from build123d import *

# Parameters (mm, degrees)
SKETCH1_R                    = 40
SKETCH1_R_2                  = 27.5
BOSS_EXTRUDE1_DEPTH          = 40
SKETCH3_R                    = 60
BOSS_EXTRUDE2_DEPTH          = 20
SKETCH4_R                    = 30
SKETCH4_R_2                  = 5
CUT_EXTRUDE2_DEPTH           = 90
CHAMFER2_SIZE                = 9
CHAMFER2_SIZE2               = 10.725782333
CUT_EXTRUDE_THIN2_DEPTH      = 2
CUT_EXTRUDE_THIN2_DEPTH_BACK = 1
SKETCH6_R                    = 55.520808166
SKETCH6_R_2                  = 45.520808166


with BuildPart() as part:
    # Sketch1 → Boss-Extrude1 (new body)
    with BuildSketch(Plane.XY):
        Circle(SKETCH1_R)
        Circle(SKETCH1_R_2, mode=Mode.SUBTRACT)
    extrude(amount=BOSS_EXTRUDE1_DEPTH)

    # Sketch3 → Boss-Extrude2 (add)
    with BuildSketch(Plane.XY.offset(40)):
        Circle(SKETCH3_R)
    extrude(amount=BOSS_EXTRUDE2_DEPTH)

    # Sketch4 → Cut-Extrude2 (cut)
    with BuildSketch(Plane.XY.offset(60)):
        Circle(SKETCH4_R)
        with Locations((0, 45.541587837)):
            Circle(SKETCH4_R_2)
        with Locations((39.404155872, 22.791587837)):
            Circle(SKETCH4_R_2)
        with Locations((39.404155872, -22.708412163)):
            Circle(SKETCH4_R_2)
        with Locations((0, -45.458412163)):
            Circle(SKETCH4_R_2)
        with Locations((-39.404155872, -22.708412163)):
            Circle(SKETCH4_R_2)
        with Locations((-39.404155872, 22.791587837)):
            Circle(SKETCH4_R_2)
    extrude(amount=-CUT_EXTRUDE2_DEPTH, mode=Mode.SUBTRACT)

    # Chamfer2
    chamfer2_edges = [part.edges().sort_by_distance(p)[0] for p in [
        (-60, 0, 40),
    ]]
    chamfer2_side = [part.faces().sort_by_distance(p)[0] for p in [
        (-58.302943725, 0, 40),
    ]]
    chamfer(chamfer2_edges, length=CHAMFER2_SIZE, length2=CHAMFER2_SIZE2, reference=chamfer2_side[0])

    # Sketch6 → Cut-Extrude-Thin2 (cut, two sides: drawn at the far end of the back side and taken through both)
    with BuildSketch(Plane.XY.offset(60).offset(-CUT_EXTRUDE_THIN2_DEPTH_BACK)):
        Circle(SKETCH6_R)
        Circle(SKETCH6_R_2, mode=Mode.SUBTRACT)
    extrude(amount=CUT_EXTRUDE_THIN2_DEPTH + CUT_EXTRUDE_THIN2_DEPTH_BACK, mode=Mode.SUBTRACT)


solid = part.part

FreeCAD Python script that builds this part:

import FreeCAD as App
import Part
import Sketcher

V = App.Vector
Q = App.Units.Quantity


def edges_at(feature, points):
    """Names of the edges that pass closest to the given points."""
    edges = feature.Shape.Edges
    near = lambda p: min(range(len(edges)), key=lambda i: edges[i].distToShape(Part.Vertex(*p))[0])
    return sorted({f"Edge{near(p) + 1}" for p in points})

doc = App.newDocument("Part")
body = doc.addObject("PartDesign::Body", "Body")

sketch1 = body.newObject("Sketcher::SketchObject", "Sketch")
sketch1.AttachmentSupport = (doc.getObject("XY_Plane"), [""])
sketch1.MapMode = "FlatFace"
sketch1.addGeometry([
    Part.Circle(V(0, 0, 0), V(0, 0, 1), 40),
    Part.Circle(V(0, 0, 0), V(0, 0, 1), 28),
], False)
sketch1.addConstraint([
    Sketcher.Constraint("Coincident", 0, 3, -1, 1),
    Sketcher.Constraint("Coincident", 1, 3, -1, 1),
    Sketcher.Constraint("Diameter", 0, Q("80 mm")),
    Sketcher.Constraint("Diameter", 1, Q("55 mm")),
])
pad1 = body.newObject("PartDesign::Pad", "Pad")
pad1.Profile = sketch1
pad1.Length = 40

sketch2 = body.newObject("Sketcher::SketchObject", "Sketch001")
sketch2.AttachmentSupport = (doc.getObject("XY_Plane"), [""])
sketch2.MapMode = "FlatFace"
sketch2.AttachmentOffset = App.Placement(V(0, 0, 40), App.Rotation())
sketch2.addGeometry(Part.Circle(V(0, 0, 0), V(0, 0, 1), 60), False)
sketch2.addConstraint([
    Sketcher.Constraint("Coincident", 0, 3, -1, 1),
    Sketcher.Constraint("Diameter", 0, Q("120 mm")),
])
pad2 = body.newObject("PartDesign::Pad", "Pad001")
pad2.Profile = sketch2
pad2.Length = 20

sketch3 = body.newObject("Sketcher::SketchObject", "Sketch002")
sketch3.AttachmentSupport = (doc.getObject("XY_Plane"), [""])
sketch3.MapMode = "FlatFace"
sketch3.AttachmentOffset = App.Placement(V(0, 0, 60), App.Rotation())
sketch3.addGeometry([
    Part.Circle(V(0, 0, 0), V(0, 0, 1), 30),
    Part.Circle(V(0, 46, 0), V(0, 0, 1), 5),
    Part.Circle(V(39, 23, 0), V(0, 0, 1), 5),
    Part.Circle(V(39, -23, 0), V(0, 0, 1), 5),
    Part.Circle(V(0, -45, 0), V(0, 0, 1), 5),
    Part.Circle(V(-39, -23, 0), V(0, 0, 1), 5),
    Part.Circle(V(-39, 23, 0), V(0, 0, 1), 5),
], False)
sketch3.addConstraint([
    Sketcher.Constraint("Coincident", 0, 3, -1, 1),
    Sketcher.Constraint("Equal", 1, 2),
    Sketcher.Constraint("Equal", 2, 3),
    Sketcher.Constraint("Equal", 3, 4),
    Sketcher.Constraint("Equal", 4, 5),
    Sketcher.Constraint("Equal", 5, 6),
    Sketcher.Constraint("Symmetric", 3, 3, 5, 3, -2),
    Sketcher.Constraint("Symmetric", 2, 3, 6, 3, -2),
    Sketcher.Constraint("PointOnObject", 1, 3, -2),
    Sketcher.Constraint("PointOnObject", 4, 3, -2),
    Sketcher.Constraint("Vertical", 2, 3, 3, 3),
    Sketcher.Constraint("Diameter", 0, Q("60 mm")),
    Sketcher.Constraint("Diameter", 1, Q("10 mm")),
    Sketcher.Constraint("DistanceY", 4, 3, 1, 3, Q("91 mm")),
    Sketcher.Constraint("DistanceY", 3, 3, 2, 3, Q("45.5 mm")),
    Sketcher.Constraint("DistanceY", 2, 3, 1, 3, Q("22.75 mm")),
    Sketcher.Constraint("DistanceX", 5, 3, 3, 3, Q("78.808312 mm")),
    Sketcher.Constraint("DistanceY", -1, 1, 1, 3, Q("45.541588 mm")),
])
pocket1 = body.newObject("PartDesign::Pocket", "Pocket")
pocket1.Profile = sketch3
pocket1.Length = 90
doc.recompute()

chamfer = body.newObject("PartDesign::Chamfer", "Chamfer")
chamfer.Base = (pocket1, edges_at(pocket1, [(-60, 0, 40)]))
chamfer.ChamferType = "Two distances"
chamfer.Size = 9
chamfer.Size2 = 10.725782

sketch4 = body.newObject("Sketcher::SketchObject", "Sketch003")
sketch4.AttachmentSupport = (doc.getObject("XY_Plane"), [""])
sketch4.MapMode = "FlatFace"
sketch4.AttachmentOffset = App.Placement(V(0, 0, 60), App.Rotation())
sketch4.addGeometry([
    Part.Circle(V(0, 0, 0), V(0, 0, 1), 56),
    Part.Circle(V(0, 0, 0), V(0, 0, 1), 46),
], False)
sketch4.addConstraint([
    Sketcher.Constraint("Coincident", 0, 3, -1, 1),
    Sketcher.Constraint("Coincident", 1, 3, -1, 1),
    Sketcher.Constraint("Diameter", 0, Q("111.041616 mm")),
    Sketcher.Constraint("Diameter", 1, Q("91.041616 mm")),
])
pocket2 = body.newObject("PartDesign::Pocket", "Pocket001")
pocket2.Profile = sketch4
pocket2.Type = "TwoLengths"
pocket2.Length = 2
pocket2.Length2 = 1
pocket2.Reversed = True

doc.recompute()
